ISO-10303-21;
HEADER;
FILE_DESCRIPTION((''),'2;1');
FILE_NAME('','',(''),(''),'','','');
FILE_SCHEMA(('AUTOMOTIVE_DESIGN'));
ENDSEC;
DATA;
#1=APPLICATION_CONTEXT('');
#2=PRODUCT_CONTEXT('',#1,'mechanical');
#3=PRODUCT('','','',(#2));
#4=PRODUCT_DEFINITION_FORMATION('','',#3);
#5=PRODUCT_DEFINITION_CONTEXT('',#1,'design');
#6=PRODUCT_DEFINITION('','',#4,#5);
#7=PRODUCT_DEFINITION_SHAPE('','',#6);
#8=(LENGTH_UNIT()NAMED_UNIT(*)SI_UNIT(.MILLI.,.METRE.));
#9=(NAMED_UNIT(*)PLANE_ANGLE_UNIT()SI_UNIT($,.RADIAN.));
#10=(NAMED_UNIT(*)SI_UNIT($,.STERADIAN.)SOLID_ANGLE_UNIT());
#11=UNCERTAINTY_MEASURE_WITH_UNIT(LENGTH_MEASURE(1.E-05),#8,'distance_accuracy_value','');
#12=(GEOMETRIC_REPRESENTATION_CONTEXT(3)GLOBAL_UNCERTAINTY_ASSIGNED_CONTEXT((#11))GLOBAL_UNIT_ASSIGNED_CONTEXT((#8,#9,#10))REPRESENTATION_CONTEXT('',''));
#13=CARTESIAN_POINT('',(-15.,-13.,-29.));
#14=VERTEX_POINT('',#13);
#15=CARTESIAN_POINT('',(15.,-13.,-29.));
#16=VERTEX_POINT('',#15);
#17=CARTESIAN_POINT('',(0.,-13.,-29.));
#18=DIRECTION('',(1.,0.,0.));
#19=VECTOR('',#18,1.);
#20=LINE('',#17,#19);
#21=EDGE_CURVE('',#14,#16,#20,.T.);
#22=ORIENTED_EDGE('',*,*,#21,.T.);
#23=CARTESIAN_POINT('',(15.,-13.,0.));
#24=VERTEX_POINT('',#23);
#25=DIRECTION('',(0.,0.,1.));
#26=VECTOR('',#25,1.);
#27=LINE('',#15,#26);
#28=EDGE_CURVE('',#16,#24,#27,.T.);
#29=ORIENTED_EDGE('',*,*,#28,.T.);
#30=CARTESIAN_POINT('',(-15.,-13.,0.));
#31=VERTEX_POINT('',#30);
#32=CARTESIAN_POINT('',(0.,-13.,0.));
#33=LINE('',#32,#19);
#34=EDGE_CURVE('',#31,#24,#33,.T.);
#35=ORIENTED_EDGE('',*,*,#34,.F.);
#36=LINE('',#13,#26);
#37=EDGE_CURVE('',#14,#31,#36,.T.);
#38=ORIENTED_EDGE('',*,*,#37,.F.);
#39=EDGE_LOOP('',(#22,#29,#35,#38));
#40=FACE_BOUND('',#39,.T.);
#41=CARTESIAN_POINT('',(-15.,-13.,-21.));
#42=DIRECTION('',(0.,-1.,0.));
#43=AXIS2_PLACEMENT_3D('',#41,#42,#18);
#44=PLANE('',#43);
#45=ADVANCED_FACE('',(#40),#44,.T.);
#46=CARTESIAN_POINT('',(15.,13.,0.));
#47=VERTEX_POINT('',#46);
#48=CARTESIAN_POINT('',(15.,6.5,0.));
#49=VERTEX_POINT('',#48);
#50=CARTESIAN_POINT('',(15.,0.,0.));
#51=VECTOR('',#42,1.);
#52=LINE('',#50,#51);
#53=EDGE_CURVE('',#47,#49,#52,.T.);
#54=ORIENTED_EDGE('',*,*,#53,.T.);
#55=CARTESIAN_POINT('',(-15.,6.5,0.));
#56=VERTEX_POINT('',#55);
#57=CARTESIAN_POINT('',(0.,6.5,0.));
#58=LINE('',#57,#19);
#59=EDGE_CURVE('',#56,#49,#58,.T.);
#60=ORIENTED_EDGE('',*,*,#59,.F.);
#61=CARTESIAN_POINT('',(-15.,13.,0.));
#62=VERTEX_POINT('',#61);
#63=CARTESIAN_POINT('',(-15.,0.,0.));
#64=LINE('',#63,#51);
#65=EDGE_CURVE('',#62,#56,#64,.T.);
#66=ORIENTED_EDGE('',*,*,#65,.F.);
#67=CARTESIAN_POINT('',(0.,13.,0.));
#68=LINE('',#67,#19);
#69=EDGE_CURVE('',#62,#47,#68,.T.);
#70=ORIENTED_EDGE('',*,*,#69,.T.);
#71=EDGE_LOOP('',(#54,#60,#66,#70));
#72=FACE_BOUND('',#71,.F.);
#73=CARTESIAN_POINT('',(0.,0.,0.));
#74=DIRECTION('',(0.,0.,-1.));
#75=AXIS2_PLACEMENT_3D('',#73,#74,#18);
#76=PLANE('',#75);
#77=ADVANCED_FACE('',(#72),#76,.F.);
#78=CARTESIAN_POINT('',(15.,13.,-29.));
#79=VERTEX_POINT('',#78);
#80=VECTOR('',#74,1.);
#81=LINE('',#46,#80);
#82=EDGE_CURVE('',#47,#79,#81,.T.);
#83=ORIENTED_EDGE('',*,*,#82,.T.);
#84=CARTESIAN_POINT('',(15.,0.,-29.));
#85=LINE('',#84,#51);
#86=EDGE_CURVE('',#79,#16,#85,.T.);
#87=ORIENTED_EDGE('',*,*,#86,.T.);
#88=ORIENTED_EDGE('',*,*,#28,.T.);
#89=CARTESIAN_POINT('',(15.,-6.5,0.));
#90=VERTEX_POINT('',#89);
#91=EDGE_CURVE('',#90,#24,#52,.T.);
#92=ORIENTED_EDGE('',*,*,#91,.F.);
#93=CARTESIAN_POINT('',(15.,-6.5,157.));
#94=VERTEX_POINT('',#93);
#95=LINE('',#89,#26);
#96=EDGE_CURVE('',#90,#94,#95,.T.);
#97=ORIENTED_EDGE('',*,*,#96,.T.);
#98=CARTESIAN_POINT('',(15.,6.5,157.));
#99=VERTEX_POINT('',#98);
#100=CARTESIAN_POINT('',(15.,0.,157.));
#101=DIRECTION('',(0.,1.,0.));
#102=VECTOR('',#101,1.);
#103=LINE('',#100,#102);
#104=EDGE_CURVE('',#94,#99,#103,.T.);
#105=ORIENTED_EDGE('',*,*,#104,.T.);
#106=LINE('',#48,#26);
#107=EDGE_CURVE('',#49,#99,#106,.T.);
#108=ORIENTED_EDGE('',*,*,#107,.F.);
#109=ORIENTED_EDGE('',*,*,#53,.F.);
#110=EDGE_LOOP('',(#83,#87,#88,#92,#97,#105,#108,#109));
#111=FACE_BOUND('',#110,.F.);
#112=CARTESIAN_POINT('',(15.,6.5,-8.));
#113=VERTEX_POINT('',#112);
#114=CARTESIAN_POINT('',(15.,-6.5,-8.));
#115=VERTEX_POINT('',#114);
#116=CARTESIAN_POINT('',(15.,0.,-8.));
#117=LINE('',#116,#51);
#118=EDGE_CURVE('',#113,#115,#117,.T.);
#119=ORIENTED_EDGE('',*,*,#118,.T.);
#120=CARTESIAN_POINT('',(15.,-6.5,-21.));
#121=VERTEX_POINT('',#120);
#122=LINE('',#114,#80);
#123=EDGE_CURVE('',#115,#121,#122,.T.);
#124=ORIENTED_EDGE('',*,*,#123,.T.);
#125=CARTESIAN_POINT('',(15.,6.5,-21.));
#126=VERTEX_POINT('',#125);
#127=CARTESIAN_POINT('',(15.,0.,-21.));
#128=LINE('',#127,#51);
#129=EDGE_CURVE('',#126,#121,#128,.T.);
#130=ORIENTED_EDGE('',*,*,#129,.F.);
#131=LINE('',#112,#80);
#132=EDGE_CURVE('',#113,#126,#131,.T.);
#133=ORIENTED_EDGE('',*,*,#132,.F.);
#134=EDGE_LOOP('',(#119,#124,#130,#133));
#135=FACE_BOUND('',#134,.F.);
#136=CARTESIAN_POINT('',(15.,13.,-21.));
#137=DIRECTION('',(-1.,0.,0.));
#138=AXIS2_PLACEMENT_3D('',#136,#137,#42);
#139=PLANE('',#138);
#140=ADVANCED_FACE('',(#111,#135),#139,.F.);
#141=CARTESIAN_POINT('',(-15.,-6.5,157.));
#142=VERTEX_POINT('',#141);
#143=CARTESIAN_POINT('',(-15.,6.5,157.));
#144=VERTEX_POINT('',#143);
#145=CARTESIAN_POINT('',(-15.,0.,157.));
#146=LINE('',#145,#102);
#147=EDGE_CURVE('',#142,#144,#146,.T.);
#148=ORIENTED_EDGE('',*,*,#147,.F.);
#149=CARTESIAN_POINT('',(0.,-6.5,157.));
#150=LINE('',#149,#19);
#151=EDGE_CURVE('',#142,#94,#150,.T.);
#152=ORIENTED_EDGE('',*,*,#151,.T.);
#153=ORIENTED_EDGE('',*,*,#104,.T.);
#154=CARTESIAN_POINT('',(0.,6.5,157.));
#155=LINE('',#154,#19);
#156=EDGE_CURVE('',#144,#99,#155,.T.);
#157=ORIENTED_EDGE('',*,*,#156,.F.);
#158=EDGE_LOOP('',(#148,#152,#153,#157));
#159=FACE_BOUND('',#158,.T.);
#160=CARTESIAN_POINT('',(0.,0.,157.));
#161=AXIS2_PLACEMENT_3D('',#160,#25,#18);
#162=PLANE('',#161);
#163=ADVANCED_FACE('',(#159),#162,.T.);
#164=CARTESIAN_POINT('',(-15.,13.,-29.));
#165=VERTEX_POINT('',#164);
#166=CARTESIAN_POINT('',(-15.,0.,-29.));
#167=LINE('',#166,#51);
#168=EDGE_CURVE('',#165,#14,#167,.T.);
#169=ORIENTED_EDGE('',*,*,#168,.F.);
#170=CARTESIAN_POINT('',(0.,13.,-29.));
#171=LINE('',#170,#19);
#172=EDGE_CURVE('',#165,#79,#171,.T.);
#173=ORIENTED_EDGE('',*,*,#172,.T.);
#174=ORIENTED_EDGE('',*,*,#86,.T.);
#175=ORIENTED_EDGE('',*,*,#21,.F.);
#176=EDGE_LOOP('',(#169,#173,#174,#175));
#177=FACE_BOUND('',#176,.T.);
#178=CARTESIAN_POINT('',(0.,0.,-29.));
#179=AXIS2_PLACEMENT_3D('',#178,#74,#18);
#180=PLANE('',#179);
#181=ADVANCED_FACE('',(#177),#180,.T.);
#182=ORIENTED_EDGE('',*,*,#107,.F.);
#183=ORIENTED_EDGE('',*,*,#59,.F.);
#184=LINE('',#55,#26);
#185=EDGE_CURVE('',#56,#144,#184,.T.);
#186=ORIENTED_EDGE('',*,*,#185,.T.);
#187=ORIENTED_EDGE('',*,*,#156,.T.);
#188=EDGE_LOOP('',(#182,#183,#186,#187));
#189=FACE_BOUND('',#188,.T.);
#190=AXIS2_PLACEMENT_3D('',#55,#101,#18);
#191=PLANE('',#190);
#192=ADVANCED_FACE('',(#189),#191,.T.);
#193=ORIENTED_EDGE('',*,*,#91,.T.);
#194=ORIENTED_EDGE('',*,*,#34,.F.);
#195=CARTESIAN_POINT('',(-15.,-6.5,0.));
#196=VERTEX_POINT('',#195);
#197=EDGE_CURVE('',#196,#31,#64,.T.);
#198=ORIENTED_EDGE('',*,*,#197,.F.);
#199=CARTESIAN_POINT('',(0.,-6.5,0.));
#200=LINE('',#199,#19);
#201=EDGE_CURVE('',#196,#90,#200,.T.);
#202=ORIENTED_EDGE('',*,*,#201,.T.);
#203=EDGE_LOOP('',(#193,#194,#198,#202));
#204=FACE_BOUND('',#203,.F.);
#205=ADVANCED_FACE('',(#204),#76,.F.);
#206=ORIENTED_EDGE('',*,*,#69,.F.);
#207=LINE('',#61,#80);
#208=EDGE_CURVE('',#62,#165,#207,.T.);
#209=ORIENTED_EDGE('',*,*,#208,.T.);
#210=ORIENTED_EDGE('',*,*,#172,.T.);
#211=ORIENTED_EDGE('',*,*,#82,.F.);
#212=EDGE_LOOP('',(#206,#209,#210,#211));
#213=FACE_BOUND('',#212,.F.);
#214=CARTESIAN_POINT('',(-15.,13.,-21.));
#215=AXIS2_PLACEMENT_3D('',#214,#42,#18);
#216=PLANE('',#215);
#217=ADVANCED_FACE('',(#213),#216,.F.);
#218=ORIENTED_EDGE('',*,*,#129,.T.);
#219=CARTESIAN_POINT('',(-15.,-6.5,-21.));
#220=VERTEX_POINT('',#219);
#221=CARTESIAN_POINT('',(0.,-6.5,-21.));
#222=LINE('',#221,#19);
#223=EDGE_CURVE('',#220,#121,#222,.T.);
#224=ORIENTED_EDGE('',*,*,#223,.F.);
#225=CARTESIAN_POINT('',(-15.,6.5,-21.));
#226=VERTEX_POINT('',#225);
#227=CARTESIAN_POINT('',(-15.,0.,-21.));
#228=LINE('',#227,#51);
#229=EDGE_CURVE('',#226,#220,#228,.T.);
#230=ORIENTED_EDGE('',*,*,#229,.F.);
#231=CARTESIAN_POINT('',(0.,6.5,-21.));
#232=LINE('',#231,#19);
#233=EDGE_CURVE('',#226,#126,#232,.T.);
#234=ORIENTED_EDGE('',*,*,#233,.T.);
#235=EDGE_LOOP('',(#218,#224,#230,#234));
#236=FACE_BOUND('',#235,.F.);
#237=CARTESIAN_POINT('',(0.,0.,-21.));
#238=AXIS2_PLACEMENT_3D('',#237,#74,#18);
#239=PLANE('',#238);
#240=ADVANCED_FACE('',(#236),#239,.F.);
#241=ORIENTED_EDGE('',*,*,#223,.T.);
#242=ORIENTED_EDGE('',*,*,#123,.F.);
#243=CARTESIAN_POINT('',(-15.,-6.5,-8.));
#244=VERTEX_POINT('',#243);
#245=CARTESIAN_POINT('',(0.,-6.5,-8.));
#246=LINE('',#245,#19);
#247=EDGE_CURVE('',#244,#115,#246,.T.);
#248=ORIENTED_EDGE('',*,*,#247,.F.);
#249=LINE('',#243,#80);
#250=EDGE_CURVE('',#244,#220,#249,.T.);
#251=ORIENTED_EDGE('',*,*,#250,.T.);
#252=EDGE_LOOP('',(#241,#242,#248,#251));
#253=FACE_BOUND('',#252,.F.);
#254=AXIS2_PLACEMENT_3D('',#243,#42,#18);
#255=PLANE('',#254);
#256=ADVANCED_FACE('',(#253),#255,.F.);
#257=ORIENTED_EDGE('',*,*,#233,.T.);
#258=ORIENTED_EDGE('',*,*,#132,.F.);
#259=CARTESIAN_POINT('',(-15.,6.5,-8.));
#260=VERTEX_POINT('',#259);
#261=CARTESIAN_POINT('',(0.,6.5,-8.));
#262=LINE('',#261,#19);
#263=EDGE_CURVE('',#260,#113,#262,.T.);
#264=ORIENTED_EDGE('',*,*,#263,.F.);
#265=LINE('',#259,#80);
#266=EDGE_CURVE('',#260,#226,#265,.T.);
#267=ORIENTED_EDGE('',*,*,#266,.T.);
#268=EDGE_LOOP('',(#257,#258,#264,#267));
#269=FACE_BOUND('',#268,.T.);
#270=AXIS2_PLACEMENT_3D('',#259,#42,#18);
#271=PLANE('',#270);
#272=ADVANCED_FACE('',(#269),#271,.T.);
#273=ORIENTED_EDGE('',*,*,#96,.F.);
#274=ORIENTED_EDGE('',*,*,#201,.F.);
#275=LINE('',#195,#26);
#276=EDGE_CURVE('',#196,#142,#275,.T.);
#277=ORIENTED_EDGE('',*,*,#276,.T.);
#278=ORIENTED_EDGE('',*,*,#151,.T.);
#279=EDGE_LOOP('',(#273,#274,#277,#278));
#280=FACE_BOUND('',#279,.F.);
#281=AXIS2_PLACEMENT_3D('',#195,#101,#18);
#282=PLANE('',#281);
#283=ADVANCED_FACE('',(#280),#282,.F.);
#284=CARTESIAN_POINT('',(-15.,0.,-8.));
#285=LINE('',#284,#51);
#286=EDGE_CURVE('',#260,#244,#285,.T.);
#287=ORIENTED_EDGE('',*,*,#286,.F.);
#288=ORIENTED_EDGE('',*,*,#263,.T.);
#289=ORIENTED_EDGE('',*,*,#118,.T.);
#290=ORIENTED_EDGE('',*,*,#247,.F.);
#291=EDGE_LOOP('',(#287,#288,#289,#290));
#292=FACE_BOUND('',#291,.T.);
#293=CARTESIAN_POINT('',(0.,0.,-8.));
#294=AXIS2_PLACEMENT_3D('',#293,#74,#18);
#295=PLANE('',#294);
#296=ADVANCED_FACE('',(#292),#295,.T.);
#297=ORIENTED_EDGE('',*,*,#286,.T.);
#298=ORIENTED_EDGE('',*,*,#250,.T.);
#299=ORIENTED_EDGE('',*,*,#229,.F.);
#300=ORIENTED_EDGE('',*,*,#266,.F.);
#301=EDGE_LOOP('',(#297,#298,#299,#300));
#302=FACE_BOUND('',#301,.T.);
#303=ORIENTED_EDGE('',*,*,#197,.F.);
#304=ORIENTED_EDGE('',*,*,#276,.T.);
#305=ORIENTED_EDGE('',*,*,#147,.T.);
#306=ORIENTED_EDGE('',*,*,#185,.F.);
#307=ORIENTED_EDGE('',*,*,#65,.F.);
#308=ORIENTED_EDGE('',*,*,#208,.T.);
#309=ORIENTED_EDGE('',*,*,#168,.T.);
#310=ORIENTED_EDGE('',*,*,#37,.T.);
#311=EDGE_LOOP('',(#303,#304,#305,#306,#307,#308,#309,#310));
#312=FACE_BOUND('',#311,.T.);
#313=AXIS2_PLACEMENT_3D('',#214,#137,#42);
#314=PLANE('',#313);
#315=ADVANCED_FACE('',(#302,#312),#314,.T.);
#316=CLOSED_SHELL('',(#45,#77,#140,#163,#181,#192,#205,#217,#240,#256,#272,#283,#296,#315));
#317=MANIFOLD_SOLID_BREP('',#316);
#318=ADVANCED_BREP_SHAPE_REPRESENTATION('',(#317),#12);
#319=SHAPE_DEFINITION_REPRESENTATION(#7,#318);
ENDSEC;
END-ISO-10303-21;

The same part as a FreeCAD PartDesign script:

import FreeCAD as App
import Part
import Sketcher
from FreeCAD import Vector
Q = App.Units.Quantity

doc = App.newDocument("Part")
body = doc.addObject("PartDesign::Body", "Body")

sketch1 = doc.addObject("Sketcher::SketchObject", "Sketch")
body.addObject(sketch1)
sketch1.AttachmentSupport = (doc.XY_Plane, [""])
sketch1.MapMode = "FlatFace"
sketch1.addGeometry(Part.LineSegment(Vector(-15, 6.5, 0), Vector(-15, -6.5, 0)), False)
sketch1.addGeometry(Part.LineSegment(Vector(-15, -6.5, 0), Vector(15, -6.5, 0)), False)
sketch1.addGeometry(Part.LineSegment(Vector(15, -6.5, 0), Vector(15, 6.5, 0)), False)
sketch1.addGeometry(Part.LineSegment(Vector(15, 6.5, 0), Vector(-15, 6.5, 0)), False)
sketch1.addConstraint(Sketcher.Constraint("Coincident", 0, 2, 1, 1))
sketch1.addConstraint(Sketcher.Constraint("Coincident", 1, 2, 2, 1))
sketch1.addConstraint(Sketcher.Constraint("Coincident", 2, 2, 3, 1))
sketch1.addConstraint(Sketcher.Constraint("Coincident", 3, 2, 0, 1))
sketch1.addConstraint(Sketcher.Constraint("Vertical", 0))
sketch1.addConstraint(Sketcher.Constraint("Horizontal", 1))
sketch1.addConstraint(Sketcher.Constraint("Vertical", 2))
sketch1.addConstraint(Sketcher.Constraint("Horizontal", 3))
sketch1.addConstraint(Sketcher.Constraint("Symmetric", 0, 2, 2, 2, -1, 1))
sketch1.addConstraint(Sketcher.Constraint("DistanceX", 1, 1, 1, 2, Q("30 mm")))
sketch1.addConstraint(Sketcher.Constraint("DistanceY", 0, 2, 0, 1, Q("13 mm")))
pad1 = doc.addObject("PartDesign::Pad", "Pad")
body.addObject(pad1)
pad1.Profile = sketch1
pad1.Length = 157

sketch2 = doc.addObject("Sketcher::SketchObject", "Sketch001")
body.addObject(sketch2)
sketch2.AttachmentSupport = (doc.XY_Plane, [""])
sketch2.MapMode = "FlatFace"
sketch2.addGeometry(Part.LineSegment(Vector(-15, -13, 0), Vector(-15, 13, 0)), False)
sketch2.addGeometry(Part.LineSegment(Vector(-15, 13, 0), Vector(15, 13, 0)), False)
sketch2.addGeometry(Part.LineSegment(Vector(15, 13, 0), Vector(15, -13, 0)), False)
sketch2.addGeometry(Part.LineSegment(Vector(15, -13, 0), Vector(-15, -13, 0)), False)
sketch2.addConstraint(Sketcher.Constraint("Coincident", 0, 2, 1, 1))
sketch2.addConstraint(Sketcher.Constraint("Coincident", 1, 2, 2, 1))
sketch2.addConstraint(Sketcher.Constraint("Coincident", 2, 2, 3, 1))
sketch2.addConstraint(Sketcher.Constraint("Coincident", 3, 2, 0, 1))
sketch2.addConstraint(Sketcher.Constraint("Vertical", 0))
sketch2.addConstraint(Sketcher.Constraint("Horizontal", 1))
sketch2.addConstraint(Sketcher.Constraint("Vertical", 2))
sketch2.addConstraint(Sketcher.Constraint("Horizontal", 3))
sketch2.addConstraint(Sketcher.Constraint("Symmetric", 0, 2, 2, 2, -1, 1))
sketch2.addConstraint(Sketcher.Constraint("DistanceX", 1, 1, 1, 2, Q("30 mm")))
sketch2.addConstraint(Sketcher.Constraint("DistanceY", 0, 1, 0, 2, Q("26 mm")))
pad2 = doc.addObject("PartDesign::Pad", "Pad001")
body.addObject(pad2)
pad2.Profile = sketch2
pad2.Length = 8
pad2.Reversed = True

sketch3 = doc.addObject("Sketcher::SketchObject", "Sketch002")
body.addObject(sketch3)
sketch3.AttachmentSupport = (doc.XY_Plane, [""])
sketch3.MapMode = "FlatFace"
sketch3.AttachmentOffset = App.Placement(Vector(0, 0, -8), App.Rotation())
sketch3.addGeometry(Part.LineSegment(Vector(-15, 6.5, 0), Vector(-15, 13, 0)), False)
sketch3.addGeometry(Part.LineSegment(Vector(-15, 13, 0), Vector(15, 13, 0)), False)
sketch3.addGeometry(Part.LineSegment(Vector(15, 13, 0), Vector(15, 6.5, 0)), False)
sketch3.addGeometry(Part.LineSegment(Vector(15, 6.5, 0), Vector(-15, 6.5, 0)), False)
sketch3.addGeometry(Part.LineSegment(Vector(-15, -13, 0), Vector(-15, -6.5, 0)), False)
sketch3.addGeometry(Part.LineSegment(Vector(-15, -6.5, 0), Vector(15, -6.5, 0)), False)
sketch3.addGeometry(Part.LineSegment(Vector(15, -6.5, 0), Vector(15, -13, 0)), False)
sketch3.addGeometry(Part.LineSegment(Vector(15, -13, 0), Vector(-15, -13, 0)), False)
sketch3.addConstraint(Sketcher.Constraint("Coincident", 0, 2, 1, 1))
sketch3.addConstraint(Sketcher.Constraint("Coincident", 1, 2, 2, 1))
sketch3.addConstraint(Sketcher.Constraint("Coincident", 2, 2, 3, 1))
sketch3.addConstraint(Sketcher.Constraint("Coincident", 3, 2, 0, 1))
sketch3.addConstraint(Sketcher.Constraint("Coincident", 4, 2, 5, 1))
sketch3.addConstraint(Sketcher.Constraint("Coincident", 5, 2, 6, 1))
sketch3.addConstraint(Sketcher.Constraint("Coincident", 6, 2, 7, 1))
sketch3.addConstraint(Sketcher.Constraint("Coincident", 7, 2, 4, 1))
sketch3.addConstraint(Sketcher.Constraint("Vertical", 0))
sketch3.addConstraint(Sketcher.Constraint("Horizontal", 1))
sketch3.addConstraint(Sketcher.Constraint("Vertical", 2))
sketch3.addConstraint(Sketcher.Constraint("Horizontal", 3))
sketch3.addConstraint(Sketcher.Constraint("Vertical", 4))
sketch3.addConstraint(Sketcher.Constraint("Horizontal", 5))
sketch3.addConstraint(Sketcher.Constraint("Vertical", 6))
sketch3.addConstraint(Sketcher.Constraint("Horizontal", 7))
sketch3.addConstraint(Sketcher.Constraint("Symmetric", 2, 2, 4, 2, -1, 1))
sketch3.addConstraint(Sketcher.Constraint("Symmetric", 0, 2, 6, 2, -1, 1))
sketch3.addConstraint(Sketcher.Constraint("Vertical", 3, 2, 4, 2))
sketch3.addConstraint(Sketcher.Constraint("DistanceX", 1, 1, 1, 2, Q("30 mm")))
sketch3.addConstraint(Sketcher.Constraint("DistanceY", 0, 1, 0, 2, Q("6.5 mm")))
sketch3.addConstraint(Sketcher.Constraint("DistanceY", -1, 1, 0, 2, Q("13 mm")))
pad3 = doc.addObject("PartDesign::Pad", "Pad002")
body.addObject(pad3)
pad3.Profile = sketch3
pad3.Length = 13
pad3.Reversed = True

sketch4 = doc.addObject("Sketcher::SketchObject", "Sketch003")
body.addObject(sketch4)
sketch4.AttachmentSupport = (doc.XY_Plane, [""])
sketch4.MapMode = "FlatFace"
sketch4.AttachmentOffset = App.Placement(Vector(0, 0, -21), App.Rotation())
sketch4.addGeometry(Part.LineSegment(Vector(-15, -13, 0), Vector(-15, 13, 0)), False)
sketch4.addGeometry(Part.LineSegment(Vector(-15, 13, 0), Vector(15, 13, 0)), False)
sketch4.addGeometry(Part.LineSegment(Vector(15, 13, 0), Vector(15, -13, 0)), False)
sketch4.addGeometry(Part.LineSegment(Vector(15, -13, 0), Vector(-15, -13, 0)), False)
sketch4.addConstraint(Sketcher.Constraint("Coincident", 0, 2, 1, 1))
sketch4.addConstraint(Sketcher.Constraint("Coincident", 1, 2, 2, 1))
sketch4.addConstraint(Sketcher.Constraint("Coincident", 2, 2, 3, 1))
sketch4.addConstraint(Sketcher.Constraint("Coincident", 3, 2, 0, 1))
sketch4.addConstraint(Sketcher.Constraint("Vertical", 0))
sketch4.addConstraint(Sketcher.Constraint("Horizontal", 1))
sketch4.addConstraint(Sketcher.Constraint("Vertical", 2))
sketch4.addConstraint(Sketcher.Constraint("Horizontal", 3))
sketch4.addConstraint(Sketcher.Constraint("Symmetric", 0, 2, 2, 2, -1, 1))
sketch4.addConstraint(Sketcher.Constraint("DistanceX", 1, 1, 1, 2, Q("30 mm")))
sketch4.addConstraint(Sketcher.Constraint("DistanceY", 0, 1, 0, 2, Q("26 mm")))
pad4 = doc.addObject("PartDesign::Pad", "Pad003")
body.addObject(pad4)
pad4.Profile = sketch4
pad4.Length = 8
pad4.Reversed = True

doc.recompute()
